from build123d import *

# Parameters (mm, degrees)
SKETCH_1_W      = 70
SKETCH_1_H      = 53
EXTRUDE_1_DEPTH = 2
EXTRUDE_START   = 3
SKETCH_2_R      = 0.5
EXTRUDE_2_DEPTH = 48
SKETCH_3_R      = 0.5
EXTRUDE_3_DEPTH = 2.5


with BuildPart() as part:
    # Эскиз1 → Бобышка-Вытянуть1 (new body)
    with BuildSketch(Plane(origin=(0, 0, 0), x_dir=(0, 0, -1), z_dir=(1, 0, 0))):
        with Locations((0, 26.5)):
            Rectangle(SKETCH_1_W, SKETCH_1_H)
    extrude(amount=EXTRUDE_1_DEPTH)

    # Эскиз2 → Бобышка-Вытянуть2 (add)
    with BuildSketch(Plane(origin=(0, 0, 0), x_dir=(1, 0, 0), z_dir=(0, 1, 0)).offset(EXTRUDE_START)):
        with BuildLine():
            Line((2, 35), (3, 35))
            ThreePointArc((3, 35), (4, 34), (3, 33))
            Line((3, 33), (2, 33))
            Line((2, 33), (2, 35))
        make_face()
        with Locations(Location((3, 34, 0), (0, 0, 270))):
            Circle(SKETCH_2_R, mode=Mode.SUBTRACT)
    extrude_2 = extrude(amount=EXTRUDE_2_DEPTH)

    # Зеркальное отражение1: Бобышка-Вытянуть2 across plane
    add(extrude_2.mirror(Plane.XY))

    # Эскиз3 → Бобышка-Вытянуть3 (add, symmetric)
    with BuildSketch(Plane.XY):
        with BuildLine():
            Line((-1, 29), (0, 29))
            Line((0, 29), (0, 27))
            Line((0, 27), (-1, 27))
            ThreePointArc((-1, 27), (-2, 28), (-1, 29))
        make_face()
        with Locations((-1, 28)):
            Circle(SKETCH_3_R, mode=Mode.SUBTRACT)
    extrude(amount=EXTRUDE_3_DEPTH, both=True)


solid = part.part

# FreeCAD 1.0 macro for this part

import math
import FreeCAD as App
import Part
import Sketcher

doc = App.newDocument("Part")
params = doc.addObject("Spreadsheet::Sheet", "Params")
for row, (alias, value) in enumerate([
    ("sketch1_width", "53 mm"),
    ("sketch1_height", "70 mm"),
    ("pad1_length", "2 mm"),
    ("sketch2_diameter", "1 mm"),
    ("sketch2_radius", "1 mm"),
    ("sketch2_width", "1 mm"),
    ("pad2_length", "48 mm"),
    ("sketch3_diameter", "1 mm"),
    ("sketch3_radius", "1 mm"),
    ("sketch3_width", "1 mm"),
    ("pad3_length", "5 mm"),
], start=1):
    params.set(f"A{row}", alias)
    params.set(f"B{row}", "=" + value)
    params.setAlias(f"B{row}", alias)

body = doc.addObject("PartDesign::Body", "Body")

# Sketch on YZ plane
sketch1 = body.newObject("Sketcher::SketchObject", "Sketch")
sketch1.AttachmentSupport = (doc.getObject("YZ_Plane"), [""])
sketch1.MapMode = "FlatFace"
sketch1.addGeometry(Part.LineSegment(App.Vector(53, 35, 0), App.Vector(0, 35, 0)), False)
sketch1.addGeometry(Part.LineSegment(App.Vector(0, 35, 0), App.Vector(0, -35, 0)), False)
sketch1.addGeometry(Part.LineSegment(App.Vector(0, -35, 0), App.Vector(53, -35, 0)), False)
sketch1.addGeometry(Part.LineSegment(App.Vector(53, -35, 0), App.Vector(53, 35, 0)), False)
sketch1.addConstraint(Sketcher.Constraint("Coincident", 0, 2, 1, 1))
sketch1.addConstraint(Sketcher.Constraint("Coincident", 1, 2, 2, 1))
sketch1.addConstraint(Sketcher.Constraint("Coincident", 2, 2, 3, 1))
sketch1.addConstraint(Sketcher.Constraint("Coincident", 3, 2, 0, 1))
sketch1.addConstraint(Sketcher.Constraint("Horizontal", 0))
sketch1.addConstraint(Sketcher.Constraint("Vertical", 1))
sketch1.addConstraint(Sketcher.Constraint("Horizontal", 2))
sketch1.addConstraint(Sketcher.Constraint("Vertical", 3))
sketch1.addConstraint(Sketcher.Constraint("Symmetric", 0, 2, 1, 2, -1, 1))
sketch1.addConstraint(Sketcher.Constraint("DistanceX", 0, 2, 0, 1, 53.0))
sketch1.addConstraint(Sketcher.Constraint("DistanceY", 1, 2, 1, 1, 70.0))
sketch1.setExpression("Constraints[9]", "Params.sketch1_width")
sketch1.setExpression("Constraints[10]", "Params.sketch1_height")
pad1 = body.newObject("PartDesign::Pad", "Pad")
pad1.Profile = sketch1
pad1.setExpression("Length", "Params.pad1_length")

# Sketch on XZ plane
sketch2 = body.newObject("Sketcher::SketchObject", "Sketch001")
sketch2.AttachmentSupport = (doc.getObject("XZ_Plane"), [""])
sketch2.MapMode = "FlatFace"
sketch2.AttachmentOffset = App.Placement(App.Vector(0, 0, -3), App.Rotation())
sketch2.addGeometry(Part.LineSegment(App.Vector(3, -35, 0), App.Vector(2, -35, 0)), False)
sketch2.addGeometry(Part.LineSegment(App.Vector(2, -35, 0), App.Vector(2, -33, 0)), False)
sketch2.addGeometry(Part.LineSegment(App.Vector(2, -33, 0), App.Vector(3, -33, 0)), False)
sketch2.addGeometry(Part.ArcOfCircle(Part.Circle(App.Vector(3, -34, 0), App.Vector(0, 0, 1), 1), math.radians(-90), math.radians(90)), False)
sketch2.addGeometry(Part.Circle(App.Vector(3, -34, 0), App.Vector(0, 0, 1), 0.5), False)
sketch2.addConstraint(Sketcher.Constraint("Coincident", 0, 2, 1, 1))
sketch2.addConstraint(Sketcher.Constraint("Coincident", 1, 2, 2, 1))
sketch2.addConstraint(Sketcher.Constraint("Tangent", 2, 2, 3, 2))
sketch2.addConstraint(Sketcher.Constraint("Tangent", 3, 1, 0, 1))
sketch2.addConstraint(Sketcher.Constraint("Horizontal", 0))
sketch2.addConstraint(Sketcher.Constraint("Vertical", 1))
sketch2.addConstraint(Sketcher.Constraint("Horizontal", 2))
sketch2.addConstraint(Sketcher.Constraint("Coincident", 4, 3, 3, 3))
sketch2.addConstraint(Sketcher.Constraint("Diameter", 4, 1.0))
sketch2.addConstraint(Sketcher.Constraint("Radius", 3, 1.0))
sketch2.addConstraint(Sketcher.Constraint("DistanceX", 0, 2, 0, 1, 1.0))
sketch2.addConstraint(Sketcher.Constraint("DistanceX", -1, 1, 3, 3, 3.0))
sketch2.addConstraint(Sketcher.Constraint("DistanceY", 3, 3, -1, 1, 34.0))
sketch2.setExpression("Constraints[8]", "Params.sketch2_diameter")
sketch2.setExpression("Constraints[9]", "Params.sketch2_radius")
sketch2.setExpression("Constraints[10]", "Params.sketch2_width")
pad2 = body.newObject("PartDesign::Pad", "Pad001")
pad2.Profile = sketch2
pad2.setExpression("Length", "Params.pad2_length")
pad2.Reversed = True
doc.recompute()

mirrored = body.newObject("PartDesign::Mirrored", "Mirrored")
mirrored.Originals = [pad2]
mirrored.MirrorPlane = (doc.getObject("XY_Plane"), [""])
body.Tip = mirrored

# Sketch on XY plane
sketch3 = body.newObject("Sketcher::SketchObject", "Sketch002")
sketch3.AttachmentSupport = (doc.getObject("XY_Plane"), [""])
sketch3.MapMode = "FlatFace"
sketch3.addGeometry(Part.LineSegment(App.Vector(0, 29, 0), App.Vector(-1, 29, 0)), False)
sketch3.addGeometry(Part.ArcOfCircle(Part.Circle(App.Vector(-1, 28, 0), App.Vector(0, 0, 1), 1), math.radians(90), math.radians(270)), False)
sketch3.addGeometry(Part.LineSegment(App.Vector(-1, 27, 0), App.Vector(0, 27, 0)), False)
sketch3.addGeometry(Part.LineSegment(App.Vector(0, 27, 0), App.Vector(0, 29, 0)), False)
sketch3.addGeometry(Part.Circle(App.Vector(-1, 28, 0), App.Vector(0, 0, 1), 0.5), False)
sketch3.addConstraint(Sketcher.Constraint("Tangent", 0, 2, 1, 1))
sketch3.addConstraint(Sketcher.Constraint("Tangent", 1, 2, 2, 1))
sketch3.addConstraint(Sketcher.Constraint("Coincident", 2, 2, 3, 1))
sketch3.addConstraint(Sketcher.Constraint("Coincident", 3, 2, 0, 1))
sketch3.addConstraint(Sketcher.Constraint("Horizontal", 0))
sketch3.addConstraint(Sketcher.Constraint("Horizontal", 2))
sketch3.addConstraint(Sketcher.Constraint("Vertical", 3))
sketch3.addConstraint(Sketcher.Constraint("Coincident", 4, 3, 1, 3))
sketch3.addConstraint(Sketcher.Constraint("PointOnObject", 2, 2, -2))
sketch3.addConstraint(Sketcher.Constraint("Diameter", 4, 1.0))
sketch3.addConstraint(Sketcher.Constraint("Radius", 1, 1.0))
sketch3.addConstraint(Sketcher.Constraint("DistanceX", 0, 2, 0, 1, 1.0))
sketch3.addConstraint(Sketcher.Constraint("DistanceY", -1, 1, 1, 3, 28.0))
sketch3.setExpression("Constraints[9]", "Params.sketch3_diameter")
sketch3.setExpression("Constraints[10]", "Params.sketch3_radius")
sketch3.setExpression("Constraints[11]", "Params.sketch3_width")
pad3 = body.newObject("PartDesign::Pad", "Pad002")
pad3.Profile = sketch3
pad3.setExpression("Length", "Params.pad3_length")
pad3.Midplane = True

doc.recompute()
